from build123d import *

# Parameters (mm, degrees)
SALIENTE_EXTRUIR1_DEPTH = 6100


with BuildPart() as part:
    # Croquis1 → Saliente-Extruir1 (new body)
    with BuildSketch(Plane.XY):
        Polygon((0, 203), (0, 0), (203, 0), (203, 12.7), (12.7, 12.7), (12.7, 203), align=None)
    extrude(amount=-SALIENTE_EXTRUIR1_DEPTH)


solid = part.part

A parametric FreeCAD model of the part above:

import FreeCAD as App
import Part
import Sketcher

V = App.Vector


def add_polygon(sketch, points):
    """Adds a closed chain of lines whose ends are joined by coincident constraints."""
    first, n = sketch.GeometryCount, len(points)
    for a, b in zip(points, points[1:] + points[:1]):
        sketch.addGeometry(Part.LineSegment(App.Vector(*a, 0), App.Vector(*b, 0)), False)
    for i in range(n):
        sketch.addConstraint(Sketcher.Constraint("Coincident", first + i, 2, first + (i + 1) % n, 1))

doc = App.newDocument("Part")
body = doc.addObject("PartDesign::Body", "Body")

# Sketch on XY plane
sketch1 = doc.addObject("Sketcher::SketchObject", "Sketch")
body.addObject(sketch1)
sketch1.AttachmentSupport = (doc.XY_Plane, [""])
sketch1.MapMode = "FlatFace"
add_polygon(sketch1, [(0, 203), (0, 0), (203, 0), (203, 13), (13, 13), (13, 203)])  # lines 0-5
sketch1.addConstraint([
    Sketcher.Constraint("Vertical", 0),
    Sketcher.Constraint("Horizontal", 1),
    Sketcher.Constraint("Vertical", 2),
    Sketcher.Constraint("Horizontal", 3),
    Sketcher.Constraint("Vertical", 4),
    Sketcher.Constraint("Horizontal", 5),
    Sketcher.Constraint("Coincident", 0, 2, -1, 1),
    Sketcher.Constraint("Equal", 1, 0),
    Sketcher.Constraint("Equal", 5, 2),
    Sketcher.Constraint("DistanceX", 1, 1, 1, 2, 203.0),
    Sketcher.Constraint("DistanceX", 3, 2, 3, 1, 190.3),
])
pad1 = doc.addObject("PartDesign::Pad", "Pad")
body.addObject(pad1)
pad1.Profile = sketch1
pad1.Length = 6100
pad1.Reversed = True

doc.recompute()
